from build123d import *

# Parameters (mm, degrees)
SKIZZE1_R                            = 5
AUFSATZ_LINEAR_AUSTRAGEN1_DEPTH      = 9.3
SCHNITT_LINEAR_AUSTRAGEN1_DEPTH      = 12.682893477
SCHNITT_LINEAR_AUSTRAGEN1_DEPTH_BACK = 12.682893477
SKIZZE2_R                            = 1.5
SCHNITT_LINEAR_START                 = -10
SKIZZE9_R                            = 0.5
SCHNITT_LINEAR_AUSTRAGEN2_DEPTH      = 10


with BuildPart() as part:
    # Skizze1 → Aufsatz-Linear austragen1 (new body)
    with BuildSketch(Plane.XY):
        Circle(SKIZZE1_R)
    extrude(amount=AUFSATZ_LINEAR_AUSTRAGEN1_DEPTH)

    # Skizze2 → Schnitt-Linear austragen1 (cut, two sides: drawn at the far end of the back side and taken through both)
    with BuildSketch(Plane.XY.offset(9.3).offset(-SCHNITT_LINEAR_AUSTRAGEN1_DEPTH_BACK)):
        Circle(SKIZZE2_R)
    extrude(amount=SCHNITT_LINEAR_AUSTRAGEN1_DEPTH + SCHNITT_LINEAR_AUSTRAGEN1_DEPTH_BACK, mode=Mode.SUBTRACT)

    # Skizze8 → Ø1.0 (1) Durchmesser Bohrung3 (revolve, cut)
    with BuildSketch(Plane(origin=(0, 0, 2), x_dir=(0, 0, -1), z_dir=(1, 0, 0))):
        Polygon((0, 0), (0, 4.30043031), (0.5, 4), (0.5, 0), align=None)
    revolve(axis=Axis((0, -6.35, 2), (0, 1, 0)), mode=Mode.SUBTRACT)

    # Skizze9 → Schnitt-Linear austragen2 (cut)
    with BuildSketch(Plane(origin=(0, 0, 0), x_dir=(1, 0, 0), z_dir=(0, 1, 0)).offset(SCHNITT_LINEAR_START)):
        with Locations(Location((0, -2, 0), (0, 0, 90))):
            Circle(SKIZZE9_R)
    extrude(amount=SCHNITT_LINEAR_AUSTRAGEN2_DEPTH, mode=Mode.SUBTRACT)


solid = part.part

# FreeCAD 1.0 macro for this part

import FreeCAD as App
import Part
import Sketcher
Q = App.Units.Quantity

doc = App.newDocument("Part")
body = doc.addObject("PartDesign::Body", "Body")

# Sketch on XY plane
sketch1 = doc.addObject("Sketcher::SketchObject", "Sketch")
body.addObject(sketch1)
sketch1.AttachmentSupport = (doc.XY_Plane, [""])
sketch1.MapMode = "FlatFace"
sketch1.addGeometry(Part.Circle(App.Vector(0, 0, 0), App.Vector(0, 0, 1), 5), False)
sketch1.addConstraint([
    Sketcher.Constraint("Coincident", 0, 3, -1, 1),
    Sketcher.Constraint("Diameter", 0, 10.0),
])
pad1 = doc.addObject("PartDesign::Pad", "Pad")
body.addObject(pad1)
pad1.Profile = sketch1
pad1.Length = 9.3

# Sketch on XY plane
sketch2 = doc.addObject("Sketcher::SketchObject", "Sketch001")
body.addObject(sketch2)
sketch2.AttachmentSupport = (doc.XY_Plane, [""])
sketch2.MapMode = "FlatFace"
sketch2.AttachmentOffset = App.Placement(App.Vector(0, 0, 9.3), App.Rotation())
sketch2.addGeometry(Part.Circle(App.Vector(0, 0, 0), App.Vector(0, 0, 1), 1.5), False)
sketch2.addConstraint([
    Sketcher.Constraint("Coincident", 0, 3, -1, 1),
    Sketcher.Constraint("Diameter", 0, 3.0),
])
pocket1 = doc.addObject("PartDesign::Pocket", "Pocket")
body.addObject(pocket1)
pocket1.Profile = sketch2
pocket1.Type = "ThroughAll"
pocket1.Midplane = True

# Sketch on YZ plane
sketch3 = doc.addObject("Sketcher::SketchObject", "Sketch002")
body.addObject(sketch3)
sketch3.AttachmentSupport = (doc.YZ_Plane, [""])
sketch3.MapMode = "FlatFace"
sketch3.addGeometry([
    Part.LineSegment(App.Vector(4.3, 2, 0), App.Vector(0, 2, 0)),
    Part.LineSegment(App.Vector(0, 2, 0), App.Vector(0, 1.5, 0)),
    Part.LineSegment(App.Vector(0, 1.5, 0), App.Vector(4, 1.5, 0)),
    Part.LineSegment(App.Vector(4, 1.5, 0), App.Vector(4.3, 2, 0)),
], False)
sketch3.addGeometry(Part.LineSegment(App.Vector(0, 2, 0), App.Vector(4.3, 2, 0)), True)  # axis
sketch3.addConstraint([
    Sketcher.Constraint("Coincident", 0, 2, 1, 1),
    Sketcher.Constraint("Coincident", 1, 2, 2, 1),
    Sketcher.Constraint("Coincident", 2, 2, 3, 1),
    Sketcher.Constraint("Coincident", 3, 2, 0, 1),
    Sketcher.Constraint("Horizontal", 0),
    Sketcher.Constraint("Vertical", 1),
    Sketcher.Constraint("Horizontal", 2),
    Sketcher.Constraint("Horizontal", 4),
    Sketcher.Constraint("Coincident", 4, 1, 0, 2),
    Sketcher.Constraint("PointOnObject", 0, 2, -2),
    Sketcher.Constraint("Equal", 0, 4),
    Sketcher.Constraint("DistanceX", 2, 1, 2, 2, 4.0),
    Sketcher.Constraint("Angle", 3, Q("59 deg")),
    Sketcher.Constraint("DistanceY", 1, 2, 1, 1, 0.5),
    Sketcher.Constraint("DistanceY", -1, 1, 0, 2, 2.0),
])
groove = doc.addObject("PartDesign::Groove", "Groove")
body.addObject(groove)
groove.Profile = sketch3
groove.ReferenceAxis = (sketch3, ["Axis0"])
groove.Angle = 360

# Sketch on XZ plane
sketch4 = doc.addObject("Sketcher::SketchObject", "Sketch003")
body.addObject(sketch4)
sketch4.AttachmentSupport = (doc.XZ_Plane, [""])
sketch4.MapMode = "FlatFace"
sketch4.AttachmentOffset = App.Placement(App.Vector(0, 0, 10), App.Rotation())
sketch4.addGeometry(Part.Circle(App.Vector(0, 2, 0), App.Vector(0, 0, 1), 0.5), False)
sketch4.addConstraint([
    Sketcher.Constraint("PointOnObject", 0, 3, -2),
    Sketcher.Constraint("Diameter", 0, 1.0),
    Sketcher.Constraint("DistanceY", -1, 1, 0, 3, 2.0),
])
pocket2 = doc.addObject("PartDesign::Pocket", "Pocket001")
body.addObject(pocket2)
pocket2.Profile = sketch4
pocket2.Length = 10

doc.recompute()
